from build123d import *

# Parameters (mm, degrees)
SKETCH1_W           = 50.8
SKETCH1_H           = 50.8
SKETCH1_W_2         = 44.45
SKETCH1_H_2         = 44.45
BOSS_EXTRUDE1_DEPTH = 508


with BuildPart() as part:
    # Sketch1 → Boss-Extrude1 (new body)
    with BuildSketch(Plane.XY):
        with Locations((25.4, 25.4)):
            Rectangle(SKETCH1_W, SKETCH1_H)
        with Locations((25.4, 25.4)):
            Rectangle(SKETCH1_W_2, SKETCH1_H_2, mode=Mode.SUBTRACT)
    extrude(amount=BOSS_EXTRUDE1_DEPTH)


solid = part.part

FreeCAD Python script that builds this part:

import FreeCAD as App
import Part
import Sketcher

V = App.Vector
Q = App.Units.Quantity


def add_polygon(sketch, points):
    """Adds a closed chain of lines whose ends are joined by coincident constraints."""
    first, n = sketch.GeometryCount, len(points)
    for a, b in zip(points, points[1:] + points[:1]):
        sketch.addGeometry(Part.LineSegment(App.Vector(*a, 0), App.Vector(*b, 0)), False)
    for i in range(n):
        sketch.addConstraint(Sketcher.Constraint("Coincident", first + i, 2, first + (i + 1) % n, 1))

doc = App.newDocument("Part")
body = doc.addObject("PartDesign::Body", "Body")

sketch1 = body.newObject("Sketcher::SketchObject", "Sketch")
sketch1.AttachmentSupport = (doc.getObject("XY_Plane"), [""])
sketch1.MapMode = "FlatFace"
add_polygon(sketch1, [(0, 50.8), (0, 0), (50.8, 0), (50.8, 50.8)])
add_polygon(sketch1, [(47.625, 3.175), (3.175, 3.175), (3.175, 47.625), (47.625, 47.625)])
sketch1.addConstraint([
    Sketcher.Constraint("Vertical", 0),
    Sketcher.Constraint("Horizontal", 1),
    Sketcher.Constraint("Vertical", 2),
    Sketcher.Constraint("Horizontal", 3),
    Sketcher.Constraint("Horizontal", 4),
    Sketcher.Constraint("Vertical", 5),
    Sketcher.Constraint("Horizontal", 6),
    Sketcher.Constraint("Vertical", 7),
    Sketcher.Constraint("Coincident", 0, 2, -1, 1),
    Sketcher.Constraint("Equal", 3, 0),
    Sketcher.Constraint("Equal", 6, 5),
    Sketcher.Constraint("DistanceX", 1, 1, 1, 2, Q("2 in")),
    Sketcher.Constraint("DistanceX", 4, 2, 4, 1, Q("1.75 in")),
    Sketcher.Constraint("DistanceX", -1, 1, 4, 2, Q("0.125 in")),
    Sketcher.Constraint("DistanceY", -1, 1, 4, 2, Q("0.125 in")),
])
pad1 = body.newObject("PartDesign::Pad", "Pad")
pad1.Profile = sketch1
pad1.Length = Q("20 in")

doc.recompute()
